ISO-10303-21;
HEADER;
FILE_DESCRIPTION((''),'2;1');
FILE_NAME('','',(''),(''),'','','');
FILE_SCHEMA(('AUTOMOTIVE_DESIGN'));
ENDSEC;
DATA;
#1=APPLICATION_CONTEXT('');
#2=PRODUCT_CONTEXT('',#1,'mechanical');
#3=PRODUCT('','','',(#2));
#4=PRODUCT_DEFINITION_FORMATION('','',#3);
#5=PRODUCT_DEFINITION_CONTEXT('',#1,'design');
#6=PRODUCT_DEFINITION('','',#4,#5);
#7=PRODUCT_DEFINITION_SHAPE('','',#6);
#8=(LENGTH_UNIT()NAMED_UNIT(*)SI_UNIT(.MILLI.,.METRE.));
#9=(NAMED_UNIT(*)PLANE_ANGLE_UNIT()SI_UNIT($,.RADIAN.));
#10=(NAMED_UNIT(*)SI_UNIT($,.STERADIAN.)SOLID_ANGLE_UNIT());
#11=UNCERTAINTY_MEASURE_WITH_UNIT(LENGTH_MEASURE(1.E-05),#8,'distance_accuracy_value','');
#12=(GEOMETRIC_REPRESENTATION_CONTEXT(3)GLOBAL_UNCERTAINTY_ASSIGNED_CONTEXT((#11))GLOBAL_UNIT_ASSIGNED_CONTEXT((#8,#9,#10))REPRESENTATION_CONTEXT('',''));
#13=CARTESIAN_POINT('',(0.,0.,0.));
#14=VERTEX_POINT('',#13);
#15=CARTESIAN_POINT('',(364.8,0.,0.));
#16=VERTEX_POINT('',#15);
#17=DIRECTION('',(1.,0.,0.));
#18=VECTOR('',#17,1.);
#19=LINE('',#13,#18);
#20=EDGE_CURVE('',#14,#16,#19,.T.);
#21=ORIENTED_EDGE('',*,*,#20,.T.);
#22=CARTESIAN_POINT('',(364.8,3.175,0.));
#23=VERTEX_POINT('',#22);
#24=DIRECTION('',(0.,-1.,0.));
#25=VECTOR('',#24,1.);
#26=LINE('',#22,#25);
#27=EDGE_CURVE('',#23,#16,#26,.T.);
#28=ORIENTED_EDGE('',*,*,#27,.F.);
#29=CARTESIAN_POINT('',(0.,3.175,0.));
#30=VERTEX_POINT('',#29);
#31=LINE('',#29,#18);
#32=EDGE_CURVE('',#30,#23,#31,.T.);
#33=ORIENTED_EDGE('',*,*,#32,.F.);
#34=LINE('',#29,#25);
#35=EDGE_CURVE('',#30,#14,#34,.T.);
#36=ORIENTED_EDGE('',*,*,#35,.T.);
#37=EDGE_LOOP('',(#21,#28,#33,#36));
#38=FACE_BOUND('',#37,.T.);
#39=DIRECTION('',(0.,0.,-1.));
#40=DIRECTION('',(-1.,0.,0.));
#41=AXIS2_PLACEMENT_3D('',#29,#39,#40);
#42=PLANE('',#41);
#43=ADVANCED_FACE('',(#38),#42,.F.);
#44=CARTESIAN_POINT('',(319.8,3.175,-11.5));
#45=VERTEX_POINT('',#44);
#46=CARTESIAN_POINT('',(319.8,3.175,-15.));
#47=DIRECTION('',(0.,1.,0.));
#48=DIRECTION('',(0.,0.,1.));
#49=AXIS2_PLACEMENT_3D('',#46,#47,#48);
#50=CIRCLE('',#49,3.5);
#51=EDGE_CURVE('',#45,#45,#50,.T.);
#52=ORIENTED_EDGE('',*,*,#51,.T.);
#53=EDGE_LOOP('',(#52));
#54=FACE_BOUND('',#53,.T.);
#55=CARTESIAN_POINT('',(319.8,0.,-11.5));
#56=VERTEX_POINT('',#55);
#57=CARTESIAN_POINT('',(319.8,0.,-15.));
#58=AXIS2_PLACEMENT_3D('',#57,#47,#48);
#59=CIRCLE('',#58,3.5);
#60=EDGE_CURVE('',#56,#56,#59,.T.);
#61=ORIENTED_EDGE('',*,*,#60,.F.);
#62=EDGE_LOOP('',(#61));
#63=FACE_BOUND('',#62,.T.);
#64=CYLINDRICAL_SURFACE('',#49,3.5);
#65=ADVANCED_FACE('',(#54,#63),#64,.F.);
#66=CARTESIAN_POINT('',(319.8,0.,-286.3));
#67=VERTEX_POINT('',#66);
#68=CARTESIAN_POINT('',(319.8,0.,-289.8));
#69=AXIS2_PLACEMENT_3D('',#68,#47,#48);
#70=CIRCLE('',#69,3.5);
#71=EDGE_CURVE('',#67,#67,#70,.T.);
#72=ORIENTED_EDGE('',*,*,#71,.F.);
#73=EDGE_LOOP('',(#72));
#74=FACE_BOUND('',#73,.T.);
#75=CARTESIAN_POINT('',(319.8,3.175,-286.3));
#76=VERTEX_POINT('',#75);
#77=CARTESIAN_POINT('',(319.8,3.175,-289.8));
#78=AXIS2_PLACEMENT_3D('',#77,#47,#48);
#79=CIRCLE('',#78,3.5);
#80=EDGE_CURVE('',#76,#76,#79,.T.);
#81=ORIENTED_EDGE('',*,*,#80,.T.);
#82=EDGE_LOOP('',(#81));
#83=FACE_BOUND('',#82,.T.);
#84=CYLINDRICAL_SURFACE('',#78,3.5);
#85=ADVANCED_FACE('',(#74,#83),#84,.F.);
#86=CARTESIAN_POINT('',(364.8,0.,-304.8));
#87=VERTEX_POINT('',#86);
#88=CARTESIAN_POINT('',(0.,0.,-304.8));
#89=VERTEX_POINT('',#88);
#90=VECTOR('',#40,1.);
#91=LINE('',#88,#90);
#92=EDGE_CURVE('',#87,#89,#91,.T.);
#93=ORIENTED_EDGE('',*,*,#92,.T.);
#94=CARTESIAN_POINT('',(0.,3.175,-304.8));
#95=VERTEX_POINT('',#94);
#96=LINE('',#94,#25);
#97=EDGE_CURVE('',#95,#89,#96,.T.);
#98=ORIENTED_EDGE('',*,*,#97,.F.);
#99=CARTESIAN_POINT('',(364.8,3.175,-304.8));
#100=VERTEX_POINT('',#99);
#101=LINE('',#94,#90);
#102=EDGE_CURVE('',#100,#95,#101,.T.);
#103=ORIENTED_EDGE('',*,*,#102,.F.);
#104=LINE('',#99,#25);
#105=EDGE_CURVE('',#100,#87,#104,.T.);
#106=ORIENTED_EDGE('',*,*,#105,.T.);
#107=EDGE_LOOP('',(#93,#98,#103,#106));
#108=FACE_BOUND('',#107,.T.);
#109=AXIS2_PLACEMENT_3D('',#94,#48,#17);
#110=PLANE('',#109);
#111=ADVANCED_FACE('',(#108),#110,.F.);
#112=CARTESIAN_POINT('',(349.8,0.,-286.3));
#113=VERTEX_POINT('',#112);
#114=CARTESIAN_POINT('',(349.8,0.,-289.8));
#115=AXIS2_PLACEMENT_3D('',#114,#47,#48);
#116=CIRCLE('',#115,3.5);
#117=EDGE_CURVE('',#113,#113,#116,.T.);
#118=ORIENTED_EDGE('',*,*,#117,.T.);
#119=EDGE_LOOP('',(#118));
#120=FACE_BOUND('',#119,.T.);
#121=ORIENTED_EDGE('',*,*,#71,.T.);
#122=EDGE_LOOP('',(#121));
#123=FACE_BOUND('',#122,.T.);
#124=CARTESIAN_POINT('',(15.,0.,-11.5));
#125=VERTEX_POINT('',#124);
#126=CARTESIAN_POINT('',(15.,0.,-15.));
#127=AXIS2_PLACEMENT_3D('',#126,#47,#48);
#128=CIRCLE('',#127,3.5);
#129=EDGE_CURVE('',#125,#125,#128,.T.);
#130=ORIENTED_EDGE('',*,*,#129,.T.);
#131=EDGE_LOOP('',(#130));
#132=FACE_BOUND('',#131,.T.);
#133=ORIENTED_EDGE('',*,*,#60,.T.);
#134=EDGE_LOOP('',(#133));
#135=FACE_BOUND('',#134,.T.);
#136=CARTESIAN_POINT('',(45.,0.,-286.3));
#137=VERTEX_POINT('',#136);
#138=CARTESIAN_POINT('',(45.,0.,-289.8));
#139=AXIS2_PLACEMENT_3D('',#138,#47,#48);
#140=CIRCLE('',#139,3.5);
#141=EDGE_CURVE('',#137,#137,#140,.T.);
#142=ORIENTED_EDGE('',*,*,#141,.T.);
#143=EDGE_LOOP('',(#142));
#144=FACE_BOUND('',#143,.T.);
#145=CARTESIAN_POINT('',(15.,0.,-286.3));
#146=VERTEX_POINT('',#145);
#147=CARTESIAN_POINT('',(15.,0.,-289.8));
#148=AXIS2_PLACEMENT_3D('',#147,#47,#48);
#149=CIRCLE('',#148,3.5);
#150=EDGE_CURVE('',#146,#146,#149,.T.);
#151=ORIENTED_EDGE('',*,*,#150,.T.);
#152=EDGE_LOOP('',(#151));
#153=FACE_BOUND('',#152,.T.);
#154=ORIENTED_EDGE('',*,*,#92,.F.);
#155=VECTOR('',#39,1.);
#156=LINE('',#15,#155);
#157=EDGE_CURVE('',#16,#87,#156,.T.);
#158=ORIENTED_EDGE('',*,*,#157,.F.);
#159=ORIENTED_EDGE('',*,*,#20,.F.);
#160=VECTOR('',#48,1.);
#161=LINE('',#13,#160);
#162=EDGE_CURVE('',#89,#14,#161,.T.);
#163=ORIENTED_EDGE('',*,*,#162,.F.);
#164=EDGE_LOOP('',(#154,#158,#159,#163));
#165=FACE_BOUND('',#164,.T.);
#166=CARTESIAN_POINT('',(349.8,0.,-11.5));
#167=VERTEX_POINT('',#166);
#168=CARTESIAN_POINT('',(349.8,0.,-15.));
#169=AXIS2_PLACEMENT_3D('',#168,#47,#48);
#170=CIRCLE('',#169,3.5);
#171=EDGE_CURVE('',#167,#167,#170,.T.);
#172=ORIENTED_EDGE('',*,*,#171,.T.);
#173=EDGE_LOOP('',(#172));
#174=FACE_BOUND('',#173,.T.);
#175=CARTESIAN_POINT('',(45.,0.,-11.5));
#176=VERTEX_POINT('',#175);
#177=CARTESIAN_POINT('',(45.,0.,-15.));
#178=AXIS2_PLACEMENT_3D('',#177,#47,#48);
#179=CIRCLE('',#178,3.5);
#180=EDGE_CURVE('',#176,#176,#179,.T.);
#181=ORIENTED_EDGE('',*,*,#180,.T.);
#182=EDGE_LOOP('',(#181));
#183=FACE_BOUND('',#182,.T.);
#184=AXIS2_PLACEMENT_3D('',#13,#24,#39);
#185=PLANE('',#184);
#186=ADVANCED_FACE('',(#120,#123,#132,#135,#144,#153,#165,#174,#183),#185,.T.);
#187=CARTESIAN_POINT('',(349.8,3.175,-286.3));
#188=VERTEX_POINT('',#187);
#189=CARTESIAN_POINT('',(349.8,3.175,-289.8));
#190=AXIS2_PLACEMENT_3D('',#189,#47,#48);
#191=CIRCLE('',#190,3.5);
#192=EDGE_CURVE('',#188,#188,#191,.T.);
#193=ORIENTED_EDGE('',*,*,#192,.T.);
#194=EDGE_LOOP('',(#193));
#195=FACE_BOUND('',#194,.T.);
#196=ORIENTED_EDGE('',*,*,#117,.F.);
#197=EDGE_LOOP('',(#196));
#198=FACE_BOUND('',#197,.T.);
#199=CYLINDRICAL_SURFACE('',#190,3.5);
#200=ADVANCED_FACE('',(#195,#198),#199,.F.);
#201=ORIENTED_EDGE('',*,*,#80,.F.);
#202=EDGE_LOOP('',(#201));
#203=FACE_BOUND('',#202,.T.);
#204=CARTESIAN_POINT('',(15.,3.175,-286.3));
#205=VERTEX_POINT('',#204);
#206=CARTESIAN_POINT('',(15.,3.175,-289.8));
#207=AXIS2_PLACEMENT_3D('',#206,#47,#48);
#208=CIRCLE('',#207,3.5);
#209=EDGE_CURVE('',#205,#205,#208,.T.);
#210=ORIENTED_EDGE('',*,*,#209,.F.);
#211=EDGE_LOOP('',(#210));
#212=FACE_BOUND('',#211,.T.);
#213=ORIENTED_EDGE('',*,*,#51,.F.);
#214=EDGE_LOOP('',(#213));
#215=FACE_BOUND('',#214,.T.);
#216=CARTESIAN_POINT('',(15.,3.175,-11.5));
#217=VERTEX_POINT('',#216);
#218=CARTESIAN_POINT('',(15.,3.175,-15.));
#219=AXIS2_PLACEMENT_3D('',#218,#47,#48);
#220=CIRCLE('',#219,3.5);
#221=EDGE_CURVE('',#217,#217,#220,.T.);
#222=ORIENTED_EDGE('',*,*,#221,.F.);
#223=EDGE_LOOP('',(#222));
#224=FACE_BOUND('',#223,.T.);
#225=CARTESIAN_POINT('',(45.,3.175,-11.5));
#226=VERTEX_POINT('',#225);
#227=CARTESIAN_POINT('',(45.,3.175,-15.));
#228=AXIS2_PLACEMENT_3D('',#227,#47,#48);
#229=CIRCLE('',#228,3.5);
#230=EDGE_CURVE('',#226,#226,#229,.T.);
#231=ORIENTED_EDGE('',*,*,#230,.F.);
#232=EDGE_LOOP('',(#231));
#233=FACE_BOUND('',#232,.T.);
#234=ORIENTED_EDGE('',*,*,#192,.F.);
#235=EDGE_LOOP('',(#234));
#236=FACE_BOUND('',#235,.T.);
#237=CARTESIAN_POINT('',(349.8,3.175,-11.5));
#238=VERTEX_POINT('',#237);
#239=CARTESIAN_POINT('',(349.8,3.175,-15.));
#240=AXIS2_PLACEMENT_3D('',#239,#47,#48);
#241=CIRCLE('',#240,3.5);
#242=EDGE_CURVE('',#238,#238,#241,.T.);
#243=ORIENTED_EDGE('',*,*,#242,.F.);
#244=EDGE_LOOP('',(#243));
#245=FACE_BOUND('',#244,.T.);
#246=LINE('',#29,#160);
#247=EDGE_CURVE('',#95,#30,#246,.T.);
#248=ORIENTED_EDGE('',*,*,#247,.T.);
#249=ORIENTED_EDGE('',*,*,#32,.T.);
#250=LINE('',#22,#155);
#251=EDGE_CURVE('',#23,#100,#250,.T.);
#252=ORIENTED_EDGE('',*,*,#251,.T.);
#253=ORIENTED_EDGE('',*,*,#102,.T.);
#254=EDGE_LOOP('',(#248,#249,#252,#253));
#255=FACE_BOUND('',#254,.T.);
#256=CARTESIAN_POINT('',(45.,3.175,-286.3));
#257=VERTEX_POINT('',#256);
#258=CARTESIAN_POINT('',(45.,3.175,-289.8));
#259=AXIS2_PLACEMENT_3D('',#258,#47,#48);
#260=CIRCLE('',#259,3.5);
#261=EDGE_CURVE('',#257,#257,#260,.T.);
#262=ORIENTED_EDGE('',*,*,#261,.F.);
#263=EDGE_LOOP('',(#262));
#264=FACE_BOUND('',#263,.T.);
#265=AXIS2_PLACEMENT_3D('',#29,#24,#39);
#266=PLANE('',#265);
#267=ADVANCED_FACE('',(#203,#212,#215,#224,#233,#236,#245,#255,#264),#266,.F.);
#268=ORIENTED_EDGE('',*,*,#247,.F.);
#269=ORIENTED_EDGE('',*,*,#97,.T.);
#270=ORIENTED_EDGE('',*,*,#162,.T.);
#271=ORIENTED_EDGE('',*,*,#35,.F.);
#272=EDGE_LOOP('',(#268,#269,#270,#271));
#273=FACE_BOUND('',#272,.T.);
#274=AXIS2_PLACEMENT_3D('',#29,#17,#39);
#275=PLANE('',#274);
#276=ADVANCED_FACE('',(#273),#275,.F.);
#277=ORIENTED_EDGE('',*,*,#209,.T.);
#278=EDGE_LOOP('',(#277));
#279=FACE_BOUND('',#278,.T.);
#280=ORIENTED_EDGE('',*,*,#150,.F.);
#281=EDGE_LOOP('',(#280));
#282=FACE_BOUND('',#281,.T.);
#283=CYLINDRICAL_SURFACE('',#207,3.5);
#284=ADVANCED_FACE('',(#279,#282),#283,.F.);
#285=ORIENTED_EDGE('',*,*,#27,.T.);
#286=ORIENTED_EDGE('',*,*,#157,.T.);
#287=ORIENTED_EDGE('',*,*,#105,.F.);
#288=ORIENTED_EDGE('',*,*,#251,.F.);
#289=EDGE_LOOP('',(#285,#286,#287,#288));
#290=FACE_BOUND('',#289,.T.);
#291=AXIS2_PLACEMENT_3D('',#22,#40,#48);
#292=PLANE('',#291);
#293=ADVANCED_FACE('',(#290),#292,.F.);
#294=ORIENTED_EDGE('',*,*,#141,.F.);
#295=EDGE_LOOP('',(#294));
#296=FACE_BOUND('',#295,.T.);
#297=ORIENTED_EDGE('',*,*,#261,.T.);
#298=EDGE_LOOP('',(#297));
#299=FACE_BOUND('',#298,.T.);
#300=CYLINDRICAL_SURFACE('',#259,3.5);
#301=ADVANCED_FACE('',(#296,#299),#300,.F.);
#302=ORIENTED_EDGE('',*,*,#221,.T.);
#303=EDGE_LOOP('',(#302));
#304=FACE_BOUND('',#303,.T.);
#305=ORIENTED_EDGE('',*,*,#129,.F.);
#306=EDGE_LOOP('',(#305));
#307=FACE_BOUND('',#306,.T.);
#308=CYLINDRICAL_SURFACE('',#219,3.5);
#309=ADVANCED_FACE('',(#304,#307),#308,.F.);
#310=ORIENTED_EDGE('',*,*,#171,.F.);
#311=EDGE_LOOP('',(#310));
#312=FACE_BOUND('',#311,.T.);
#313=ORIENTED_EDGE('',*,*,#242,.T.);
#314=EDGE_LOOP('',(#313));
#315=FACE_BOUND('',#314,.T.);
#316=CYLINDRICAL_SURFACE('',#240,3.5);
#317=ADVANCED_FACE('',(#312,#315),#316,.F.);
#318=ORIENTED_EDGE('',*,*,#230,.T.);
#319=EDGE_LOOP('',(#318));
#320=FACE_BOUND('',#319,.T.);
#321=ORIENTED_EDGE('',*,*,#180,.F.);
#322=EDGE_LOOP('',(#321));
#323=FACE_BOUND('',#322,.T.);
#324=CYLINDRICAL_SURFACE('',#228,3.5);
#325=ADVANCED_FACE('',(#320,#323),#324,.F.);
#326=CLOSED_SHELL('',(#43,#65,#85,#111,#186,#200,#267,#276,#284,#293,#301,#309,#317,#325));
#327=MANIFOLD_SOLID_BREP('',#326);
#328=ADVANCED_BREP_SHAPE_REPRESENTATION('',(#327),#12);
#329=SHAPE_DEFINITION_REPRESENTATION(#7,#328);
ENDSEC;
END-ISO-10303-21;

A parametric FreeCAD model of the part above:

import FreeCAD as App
import Part
import Sketcher
from FreeCAD import Vector


def add_polygon(sketch, points):
    """Adds a closed chain of lines whose ends are joined by coincident constraints."""
    first, n = sketch.GeometryCount, len(points)
    for a, b in zip(points, points[1:] + points[:1]):
        sketch.addGeometry(Part.LineSegment(App.Vector(*a, 0), App.Vector(*b, 0)), False)
    for i in range(n):
        sketch.addConstraint(Sketcher.Constraint("Coincident", first + i, 2, first + (i + 1) % n, 1))

doc = App.newDocument("Part")
params = doc.addObject("Spreadsheet::Sheet", "Params")
for row, (alias, value) in enumerate([
    ("sketch1_width", "364.8 mm"),
    ("sketch1_height", "304.8 mm"),
    ("pad1_length", "3.175 mm"),
    ("sketch2_diameter", "7 mm"),
    ("hole_diameter", "7 mm"),
], start=1):
    params.set(f"A{row}", alias)
    params.set(f"B{row}", "=" + value)
    params.setAlias(f"B{row}", alias)

body = doc.addObject("PartDesign::Body", "Body")

sketch1 = doc.addObject("Sketcher::SketchObject", "Sketch")
body.addObject(sketch1)
sketch1.AttachmentSupport = (doc.XZ_Plane, [""])
sketch1.MapMode = "FlatFace"
add_polygon(sketch1, [(0, -304.8), (0, 0), (364.8, 0), (364.8, -304.8)])
sketch1.addConstraint(Sketcher.Constraint("Vertical", 0))
sketch1.addConstraint(Sketcher.Constraint("Horizontal", 1))
sketch1.addConstraint(Sketcher.Constraint("Vertical", 2))
sketch1.addConstraint(Sketcher.Constraint("Horizontal", 3))
sketch1.addConstraint(Sketcher.Constraint("Coincident", 0, 2, -1, 1))
sketch1.addConstraint(Sketcher.Constraint("DistanceX", 1, 1, 1, 2, 364.8))
sketch1.addConstraint(Sketcher.Constraint("DistanceY", 0, 1, 0, 2, 304.8))
sketch1.setExpression("Constraints[9]", "Params.sketch1_width")
sketch1.setExpression("Constraints[10]", "Params.sketch1_height")
pad1 = doc.addObject("PartDesign::Pad", "Pad")
body.addObject(pad1)
pad1.Profile = sketch1
pad1.setExpression("Length", "Params.pad1_length")
pad1.Reversed = True

sketch2 = doc.addObject("Sketcher::SketchObject", "Sketch001")
body.addObject(sketch2)
sketch2.AttachmentSupport = (doc.XZ_Plane, [""])
sketch2.MapMode = "FlatFace"
sketch2.AttachmentOffset = App.Placement(Vector(0, 0, -3.175), App.Rotation())
sketch2.addGeometry(Part.Circle(Vector(45, -15, 0), Vector(0, 0, 1), 3.5), False)
sketch2.addGeometry(Part.Circle(Vector(15, -289.8, 0), Vector(0, 0, 1), 3.5), False)
sketch2.addGeometry(Part.Circle(Vector(349.8, -289.8, 0), Vector(0, 0, 1), 3.5), False)
sketch2.addGeometry(Part.Circle(Vector(349.8, -15, 0), Vector(0, 0, 1), 3.5), False)
sketch2.addGeometry(Part.Circle(Vector(15, -15, 0), Vector(0, 0, 1), 3.5), False)
sketch2.addGeometry(Part.Circle(Vector(45, -289.8, 0), Vector(0, 0, 1), 3.5), False)
sketch2.addGeometry(Part.Circle(Vector(319.8, -289.8, 0), Vector(0, 0, 1), 3.5), False)
sketch2.addGeometry(Part.Circle(Vector(319.8, -15, 0), Vector(0, 0, 1), 3.5), False)
sketch2.addConstraint(Sketcher.Constraint("Equal", 0, 1))
sketch2.addConstraint(Sketcher.Constraint("Equal", 1, 2))
sketch2.addConstraint(Sketcher.Constraint("Equal", 2, 3))
sketch2.addConstraint(Sketcher.Constraint("Equal", 3, 4))
sketch2.addConstraint(Sketcher.Constraint("Equal", 4, 5))
sketch2.addConstraint(Sketcher.Constraint("Equal", 5, 6))
sketch2.addConstraint(Sketcher.Constraint("Equal", 6, 7))
sketch2.addConstraint(Sketcher.Constraint("Horizontal", 1, 3, 2, 3))
sketch2.addConstraint(Sketcher.Constraint("Horizontal", 0, 3, 3, 3))
sketch2.addConstraint(Sketcher.Constraint("Horizontal", 3, 3, 4, 3))
sketch2.addConstraint(Sketcher.Constraint("Horizontal", 2, 3, 5, 3))
sketch2.addConstraint(Sketcher.Constraint("Horizontal", 5, 3, 6, 3))
sketch2.addConstraint(Sketcher.Constraint("Horizontal", 4, 3, 7, 3))
sketch2.addConstraint(Sketcher.Constraint("Vertical", 2, 3, 3, 3))
sketch2.addConstraint(Sketcher.Constraint("Vertical", 1, 3, 4, 3))
sketch2.addConstraint(Sketcher.Constraint("Vertical", 0, 3, 5, 3))
sketch2.addConstraint(Sketcher.Constraint("Vertical", 6, 3, 7, 3))
sketch2.addConstraint(Sketcher.Constraint("Diameter", 0, 7.0))
sketch2.addConstraint(Sketcher.Constraint("DistanceX", -1, 1, 0, 3, 45.0))
sketch2.addConstraint(Sketcher.Constraint("DistanceY", 0, 3, -1, 1, 15.0))
sketch2.addConstraint(Sketcher.Constraint("DistanceX", -1, 1, 1, 3, 15.0))
sketch2.addConstraint(Sketcher.Constraint("DistanceX", 6, 3, 2, 3, 30.0))
sketch2.addConstraint(Sketcher.Constraint("DistanceY", 1, 3, -1, 1, 289.8))
sketch2.addConstraint(Sketcher.Constraint("DistanceX", -1, 1, 2, 3, 349.8))
sketch2.setExpression("Constraints[17]", "Params.sketch2_diameter")
doc.recompute()
hole = doc.addObject("PartDesign::Hole", "Hole")
body.addObject(hole)
hole.Profile = sketch2
hole.ThreadType = "None"
hole.setExpression("Diameter", "Params.hole_diameter")
hole.DepthType = "ThroughAll"
hole.Reversed = True

doc.recompute()
